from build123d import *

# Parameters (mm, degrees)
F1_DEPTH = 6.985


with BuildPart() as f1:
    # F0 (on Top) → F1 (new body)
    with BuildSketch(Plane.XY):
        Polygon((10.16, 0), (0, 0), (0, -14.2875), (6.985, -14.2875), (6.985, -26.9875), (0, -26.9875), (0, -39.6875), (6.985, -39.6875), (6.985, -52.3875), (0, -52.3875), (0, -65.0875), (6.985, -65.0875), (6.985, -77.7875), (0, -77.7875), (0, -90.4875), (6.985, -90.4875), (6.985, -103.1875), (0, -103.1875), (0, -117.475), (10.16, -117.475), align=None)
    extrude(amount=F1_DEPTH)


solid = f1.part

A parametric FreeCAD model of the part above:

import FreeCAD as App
import Part
import Sketcher

V = App.Vector
Q = App.Units.Quantity

doc = App.newDocument("Part")
params = doc.addObject("Spreadsheet::Sheet", "Params")
for row, (alias, value) in enumerate([
    ("sketch1_width", "0.4 in"),
    ("sketch1_height", "0.5 in"),
    ("sketch1_width2", "0.275 in"),
    ("sketch1_height2", "0.5625 in"),
    ("pad1_length", "0.275 in"),
], start=1):
    params.set(f"A{row}", alias)
    params.set(f"B{row}", "=" + value)
    params.setAlias(f"B{row}", alias)

body = doc.addObject("PartDesign::Body", "Body")

# Sketch on XY plane
sketch1 = body.newObject("Sketcher::SketchObject", "Sketch")
sketch1.AttachmentSupport = (doc.getObject("XY_Plane"), [""])
sketch1.MapMode = "FlatFace"
sketch1.addGeometry([
    Part.LineSegment(V(10, 0, 0), V(0, 0, 0)),  # 0
    Part.LineSegment(V(0, 0, 0), V(0, -14, 0)),  # 1
    Part.LineSegment(V(0, -14, 0), V(7, -14, 0)),  # 2
    Part.LineSegment(V(7, -14, 0), V(7, -27, 0)),  # 3
    Part.LineSegment(V(7, -27, 0), V(0, -27, 0)),  # 4
    Part.LineSegment(V(0, -27, 0), V(0, -40, 0)),  # 5
    Part.LineSegment(V(0, -40, 0), V(7, -40, 0)),  # 6
    Part.LineSegment(V(7, -40, 0), V(7, -52, 0)),  # 7
    Part.LineSegment(V(7, -52, 0), V(0, -52, 0)),  # 8
    Part.LineSegment(V(0, -52, 0), V(0, -65, 0)),  # 9
    Part.LineSegment(V(0, -65, 0), V(7, -65, 0)),  # 10
    Part.LineSegment(V(7, -65, 0), V(7, -78, 0)),  # 11
    Part.LineSegment(V(7, -78, 0), V(0, -78, 0)),  # 12
    Part.LineSegment(V(0, -78, 0), V(0, -90, 0)),  # 13
    Part.LineSegment(V(0, -90, 0), V(7, -90, 0)),  # 14
    Part.LineSegment(V(7, -90, 0), V(7, -103, 0)),  # 15
    Part.LineSegment(V(7, -103, 0), V(0, -103, 0)),  # 16
    Part.LineSegment(V(0, -103, 0), V(0, -117, 0)),  # 17
    Part.LineSegment(V(0, -117, 0), V(10, -117, 0)),  # 18
    Part.LineSegment(V(10, -117, 0), V(10, 0, 0)),  # 19
], False)
sketch1.addConstraint([
    Sketcher.Constraint("Coincident", 0, 2, 1, 1),
    Sketcher.Constraint("Coincident", 1, 2, 2, 1),
    Sketcher.Constraint("Coincident", 2, 2, 3, 1),
    Sketcher.Constraint("Coincident", 3, 2, 4, 1),
    Sketcher.Constraint("Coincident", 4, 2, 5, 1),
    Sketcher.Constraint("Coincident", 5, 2, 6, 1),
    Sketcher.Constraint("Coincident", 6, 2, 7, 1),
    Sketcher.Constraint("Coincident", 7, 2, 8, 1),
    Sketcher.Constraint("Coincident", 8, 2, 9, 1),
    Sketcher.Constraint("Coincident", 9, 2, 10, 1),
    Sketcher.Constraint("Coincident", 10, 2, 11, 1),
    Sketcher.Constraint("Coincident", 11, 2, 12, 1),
    Sketcher.Constraint("Coincident", 12, 2, 13, 1),
    Sketcher.Constraint("Coincident", 13, 2, 14, 1),
    Sketcher.Constraint("Coincident", 14, 2, 15, 1),
    Sketcher.Constraint("Coincident", 15, 2, 16, 1),
    Sketcher.Constraint("Coincident", 16, 2, 17, 1),
    Sketcher.Constraint("Coincident", 17, 2, 18, 1),
    Sketcher.Constraint("Coincident", 18, 2, 19, 1),
    Sketcher.Constraint("Coincident", 19, 2, 0, 1),
    Sketcher.Constraint("Horizontal", 0),
    Sketcher.Constraint("Vertical", 1),
    Sketcher.Constraint("Horizontal", 2),
    Sketcher.Constraint("Vertical", 3),
    Sketcher.Constraint("Horizontal", 4),
    Sketcher.Constraint("Vertical", 5),
    Sketcher.Constraint("Horizontal", 6),
    Sketcher.Constraint("Vertical", 7),
    Sketcher.Constraint("Horizontal", 8),
    Sketcher.Constraint("Vertical", 9),
    Sketcher.Constraint("Horizontal", 10),
    Sketcher.Constraint("Vertical", 11),
    Sketcher.Constraint("Horizontal", 12),
    Sketcher.Constraint("Vertical", 13),
    Sketcher.Constraint("Horizontal", 14),
    Sketcher.Constraint("Vertical", 15),
    Sketcher.Constraint("Horizontal", 16),
    Sketcher.Constraint("Vertical", 17),
    Sketcher.Constraint("Horizontal", 18),
    Sketcher.Constraint("Vertical", 19),
    Sketcher.Constraint("Coincident", 0, 2, -1, 1),
    Sketcher.Constraint("PointOnObject", 4, 2, -2),
    Sketcher.Constraint("PointOnObject", 8, 2, -2),
    Sketcher.Constraint("PointOnObject", 12, 2, -2),
    Sketcher.Constraint("PointOnObject", 16, 2, -2),
    Sketcher.Constraint("Vertical", 3, 2, 6, 2),
    Sketcher.Constraint("Vertical", 7, 2, 10, 2),
    Sketcher.Constraint("Vertical", 11, 2, 14, 2),
    Sketcher.Constraint("Equal", 3, 5),
    Sketcher.Constraint("Equal", 5, 7),
    Sketcher.Constraint("Equal", 7, 9),
    Sketcher.Constraint("Equal", 9, 11),
    Sketcher.Constraint("Equal", 11, 13),
    Sketcher.Constraint("Equal", 13, 15),
    Sketcher.Constraint("Equal", 1, 17),
    Sketcher.Constraint("DistanceX", 0, 2, 0, 1, Q("0.4 in")),
    Sketcher.Constraint("DistanceY", 3, 2, 3, 1, Q("0.5 in")),
    Sketcher.Constraint("DistanceX", 2, 1, 2, 2, Q("0.275 in")),
    Sketcher.Constraint("DistanceY", 1, 2, 1, 1, Q("0.5625 in")),
])
sketch1.setExpression("Constraints[55]", "Params.sketch1_width")
sketch1.setExpression("Constraints[56]", "Params.sketch1_height")
sketch1.setExpression("Constraints[57]", "Params.sketch1_width2")
sketch1.setExpression("Constraints[58]", "Params.sketch1_height2")
pad1 = body.newObject("PartDesign::Pad", "Pad")
pad1.Profile = sketch1
pad1.setExpression("Length", "Params.pad1_length")

doc.recompute()
